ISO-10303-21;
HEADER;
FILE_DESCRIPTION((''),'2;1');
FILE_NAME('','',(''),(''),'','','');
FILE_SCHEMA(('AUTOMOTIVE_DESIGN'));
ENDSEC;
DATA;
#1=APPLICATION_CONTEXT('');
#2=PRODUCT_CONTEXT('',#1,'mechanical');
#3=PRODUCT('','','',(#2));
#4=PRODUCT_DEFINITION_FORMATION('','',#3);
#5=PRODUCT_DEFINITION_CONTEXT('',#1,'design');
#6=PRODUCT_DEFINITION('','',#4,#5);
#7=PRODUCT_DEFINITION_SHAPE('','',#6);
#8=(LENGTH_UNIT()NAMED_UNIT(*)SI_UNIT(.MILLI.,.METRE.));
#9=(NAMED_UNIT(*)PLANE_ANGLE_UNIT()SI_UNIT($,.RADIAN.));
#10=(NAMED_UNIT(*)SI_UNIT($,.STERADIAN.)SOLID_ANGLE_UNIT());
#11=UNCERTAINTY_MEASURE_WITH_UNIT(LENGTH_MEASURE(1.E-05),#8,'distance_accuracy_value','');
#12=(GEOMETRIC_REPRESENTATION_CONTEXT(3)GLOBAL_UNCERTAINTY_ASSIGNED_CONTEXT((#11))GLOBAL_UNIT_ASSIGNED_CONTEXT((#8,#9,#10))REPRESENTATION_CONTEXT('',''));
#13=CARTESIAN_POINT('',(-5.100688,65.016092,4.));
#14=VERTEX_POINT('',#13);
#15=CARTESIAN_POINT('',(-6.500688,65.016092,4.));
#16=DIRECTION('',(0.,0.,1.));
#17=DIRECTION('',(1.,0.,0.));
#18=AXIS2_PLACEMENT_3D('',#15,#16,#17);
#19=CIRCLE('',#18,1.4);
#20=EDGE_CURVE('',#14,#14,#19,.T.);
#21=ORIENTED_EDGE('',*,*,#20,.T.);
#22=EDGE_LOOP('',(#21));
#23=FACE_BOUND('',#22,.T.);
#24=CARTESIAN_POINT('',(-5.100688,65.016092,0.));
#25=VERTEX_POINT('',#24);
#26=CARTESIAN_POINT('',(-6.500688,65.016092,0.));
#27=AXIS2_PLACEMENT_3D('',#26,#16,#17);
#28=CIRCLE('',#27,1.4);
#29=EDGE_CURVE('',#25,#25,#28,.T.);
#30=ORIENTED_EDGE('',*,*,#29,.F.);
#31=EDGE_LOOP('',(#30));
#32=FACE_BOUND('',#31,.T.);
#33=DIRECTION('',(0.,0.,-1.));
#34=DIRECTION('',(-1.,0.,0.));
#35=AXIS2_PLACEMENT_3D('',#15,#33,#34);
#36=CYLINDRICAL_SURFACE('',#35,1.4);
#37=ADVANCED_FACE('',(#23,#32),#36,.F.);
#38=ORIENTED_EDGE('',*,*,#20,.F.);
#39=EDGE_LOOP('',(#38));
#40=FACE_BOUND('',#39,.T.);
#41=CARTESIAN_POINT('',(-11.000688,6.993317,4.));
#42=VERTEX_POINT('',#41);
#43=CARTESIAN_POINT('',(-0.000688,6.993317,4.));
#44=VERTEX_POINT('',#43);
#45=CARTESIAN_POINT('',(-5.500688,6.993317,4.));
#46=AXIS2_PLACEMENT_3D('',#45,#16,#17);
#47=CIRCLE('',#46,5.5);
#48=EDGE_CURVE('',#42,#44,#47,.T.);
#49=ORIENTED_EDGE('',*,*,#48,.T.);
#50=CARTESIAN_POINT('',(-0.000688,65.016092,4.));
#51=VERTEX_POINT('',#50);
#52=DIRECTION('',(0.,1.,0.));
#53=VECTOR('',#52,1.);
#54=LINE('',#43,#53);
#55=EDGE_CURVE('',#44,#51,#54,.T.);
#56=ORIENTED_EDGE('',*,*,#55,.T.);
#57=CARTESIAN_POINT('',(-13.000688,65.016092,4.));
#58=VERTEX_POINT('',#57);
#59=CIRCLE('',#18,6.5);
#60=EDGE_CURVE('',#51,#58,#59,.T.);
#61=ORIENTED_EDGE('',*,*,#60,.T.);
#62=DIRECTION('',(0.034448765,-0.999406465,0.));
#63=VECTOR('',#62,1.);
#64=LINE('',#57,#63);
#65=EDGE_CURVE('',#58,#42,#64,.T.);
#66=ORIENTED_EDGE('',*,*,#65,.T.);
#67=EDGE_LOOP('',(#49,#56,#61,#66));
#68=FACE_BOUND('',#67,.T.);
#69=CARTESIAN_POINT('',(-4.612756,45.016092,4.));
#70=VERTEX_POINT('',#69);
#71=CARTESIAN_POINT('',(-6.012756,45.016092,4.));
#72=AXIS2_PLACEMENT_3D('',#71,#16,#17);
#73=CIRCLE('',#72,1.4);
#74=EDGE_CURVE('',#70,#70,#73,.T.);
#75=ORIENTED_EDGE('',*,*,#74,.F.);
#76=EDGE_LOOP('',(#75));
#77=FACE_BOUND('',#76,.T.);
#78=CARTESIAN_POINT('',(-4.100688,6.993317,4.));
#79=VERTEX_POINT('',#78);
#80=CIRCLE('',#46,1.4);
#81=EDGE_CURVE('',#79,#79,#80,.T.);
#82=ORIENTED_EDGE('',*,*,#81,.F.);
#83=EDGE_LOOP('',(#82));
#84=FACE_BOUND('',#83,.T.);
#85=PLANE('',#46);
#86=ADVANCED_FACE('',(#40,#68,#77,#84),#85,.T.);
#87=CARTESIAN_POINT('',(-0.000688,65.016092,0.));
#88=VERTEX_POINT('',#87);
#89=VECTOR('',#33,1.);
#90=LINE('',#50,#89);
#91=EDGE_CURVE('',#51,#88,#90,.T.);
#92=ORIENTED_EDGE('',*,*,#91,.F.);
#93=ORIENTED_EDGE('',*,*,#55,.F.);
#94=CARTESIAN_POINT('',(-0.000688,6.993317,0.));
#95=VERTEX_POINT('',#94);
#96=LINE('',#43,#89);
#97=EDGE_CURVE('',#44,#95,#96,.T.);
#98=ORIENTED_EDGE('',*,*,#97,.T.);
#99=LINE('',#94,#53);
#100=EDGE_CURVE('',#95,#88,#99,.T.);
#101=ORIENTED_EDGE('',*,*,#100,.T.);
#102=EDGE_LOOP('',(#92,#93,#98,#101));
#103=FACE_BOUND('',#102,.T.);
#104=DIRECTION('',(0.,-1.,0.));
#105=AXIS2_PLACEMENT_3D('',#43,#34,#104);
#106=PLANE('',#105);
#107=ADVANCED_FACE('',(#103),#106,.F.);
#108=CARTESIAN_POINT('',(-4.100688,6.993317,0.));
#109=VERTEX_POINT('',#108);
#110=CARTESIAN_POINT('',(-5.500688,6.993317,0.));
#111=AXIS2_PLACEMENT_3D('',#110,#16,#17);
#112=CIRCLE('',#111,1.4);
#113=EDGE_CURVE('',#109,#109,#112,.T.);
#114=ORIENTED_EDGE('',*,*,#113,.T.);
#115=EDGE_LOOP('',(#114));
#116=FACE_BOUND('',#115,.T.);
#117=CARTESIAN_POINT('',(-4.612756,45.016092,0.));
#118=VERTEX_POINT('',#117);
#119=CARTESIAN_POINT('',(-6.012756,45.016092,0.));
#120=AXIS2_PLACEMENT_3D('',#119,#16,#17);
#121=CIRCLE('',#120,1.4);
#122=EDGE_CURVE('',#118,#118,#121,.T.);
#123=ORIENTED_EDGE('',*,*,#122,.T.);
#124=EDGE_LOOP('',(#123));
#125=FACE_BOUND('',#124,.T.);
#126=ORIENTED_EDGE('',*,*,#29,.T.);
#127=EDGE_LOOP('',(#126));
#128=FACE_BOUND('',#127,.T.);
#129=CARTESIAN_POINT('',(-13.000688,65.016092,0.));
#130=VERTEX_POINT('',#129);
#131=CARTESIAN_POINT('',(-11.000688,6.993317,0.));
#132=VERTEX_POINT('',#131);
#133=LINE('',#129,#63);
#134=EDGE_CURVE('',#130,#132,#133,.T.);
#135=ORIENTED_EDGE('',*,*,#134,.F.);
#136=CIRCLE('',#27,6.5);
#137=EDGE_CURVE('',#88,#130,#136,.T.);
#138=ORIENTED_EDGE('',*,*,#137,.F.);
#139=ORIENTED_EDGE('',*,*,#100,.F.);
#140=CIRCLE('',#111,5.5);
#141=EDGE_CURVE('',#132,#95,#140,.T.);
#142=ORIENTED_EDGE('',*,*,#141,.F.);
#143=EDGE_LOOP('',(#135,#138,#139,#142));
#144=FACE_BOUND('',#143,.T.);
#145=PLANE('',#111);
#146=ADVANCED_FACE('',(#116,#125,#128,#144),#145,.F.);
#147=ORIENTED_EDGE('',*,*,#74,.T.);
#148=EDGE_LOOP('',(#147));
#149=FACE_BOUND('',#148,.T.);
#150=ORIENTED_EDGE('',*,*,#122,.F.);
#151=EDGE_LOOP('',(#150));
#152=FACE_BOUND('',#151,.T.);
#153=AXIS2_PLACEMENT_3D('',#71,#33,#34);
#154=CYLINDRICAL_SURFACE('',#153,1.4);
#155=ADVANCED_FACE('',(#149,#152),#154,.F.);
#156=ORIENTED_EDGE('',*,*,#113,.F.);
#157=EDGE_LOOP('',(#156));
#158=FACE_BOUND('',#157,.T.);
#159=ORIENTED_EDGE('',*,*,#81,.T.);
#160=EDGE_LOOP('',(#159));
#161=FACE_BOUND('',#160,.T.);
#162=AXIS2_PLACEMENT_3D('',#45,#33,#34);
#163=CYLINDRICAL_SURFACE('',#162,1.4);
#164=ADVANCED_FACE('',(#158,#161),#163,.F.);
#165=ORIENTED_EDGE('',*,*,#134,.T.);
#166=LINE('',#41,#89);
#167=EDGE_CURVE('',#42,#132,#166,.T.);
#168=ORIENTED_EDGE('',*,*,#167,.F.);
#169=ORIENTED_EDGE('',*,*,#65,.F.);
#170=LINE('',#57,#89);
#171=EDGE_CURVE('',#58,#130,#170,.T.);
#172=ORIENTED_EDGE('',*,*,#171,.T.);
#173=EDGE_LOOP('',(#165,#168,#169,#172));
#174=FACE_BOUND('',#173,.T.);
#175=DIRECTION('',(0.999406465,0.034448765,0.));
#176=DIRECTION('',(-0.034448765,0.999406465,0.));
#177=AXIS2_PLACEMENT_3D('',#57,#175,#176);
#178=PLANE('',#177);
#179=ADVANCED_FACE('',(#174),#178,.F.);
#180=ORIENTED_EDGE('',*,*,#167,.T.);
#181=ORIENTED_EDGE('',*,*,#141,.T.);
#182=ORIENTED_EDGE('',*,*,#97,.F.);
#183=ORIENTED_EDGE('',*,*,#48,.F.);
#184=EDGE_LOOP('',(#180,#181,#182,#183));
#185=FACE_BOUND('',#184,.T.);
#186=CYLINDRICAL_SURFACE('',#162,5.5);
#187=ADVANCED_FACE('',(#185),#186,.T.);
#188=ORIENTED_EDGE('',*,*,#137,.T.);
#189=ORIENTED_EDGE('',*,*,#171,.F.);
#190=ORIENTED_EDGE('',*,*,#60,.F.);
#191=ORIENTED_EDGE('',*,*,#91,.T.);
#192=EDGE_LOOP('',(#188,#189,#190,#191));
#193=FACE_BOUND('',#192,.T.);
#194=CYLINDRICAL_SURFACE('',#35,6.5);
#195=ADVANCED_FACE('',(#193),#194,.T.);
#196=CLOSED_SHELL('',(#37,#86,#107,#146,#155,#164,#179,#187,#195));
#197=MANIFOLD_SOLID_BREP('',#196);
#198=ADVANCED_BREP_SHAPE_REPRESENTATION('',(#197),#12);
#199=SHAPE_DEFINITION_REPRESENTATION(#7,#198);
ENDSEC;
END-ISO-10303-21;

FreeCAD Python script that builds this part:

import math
import FreeCAD as App
import Part
import Sketcher

V = App.Vector

doc = App.newDocument("Part")
body = doc.addObject("PartDesign::Body", "Body")

# Sketch on XY plane
sketch1 = doc.addObject("Sketcher::SketchObject", "Sketch")
body.addObject(sketch1)
sketch1.AttachmentSupport = (doc.XY_Plane, [""])
sketch1.MapMode = "FlatFace"
sketch1.addGeometry([
    Part.LineSegment(V(0, 7, 0), V(0, 65, 0)),  # 0
    Part.ArcOfCircle(Part.Circle(V(-6.5, 65, 0), V(0, 0, 1), 6.5), math.radians(0), math.radians(180)),  # 1
    Part.LineSegment(V(-13, 65, 0), V(-11, 7, 0)),  # 2
    Part.ArcOfCircle(Part.Circle(V(-5.5, 7, 0), V(0, 0, 1), 5.5), math.radians(180), math.radians(360)),  # 3
    Part.Circle(V(-5.5, 7, 0), V(0, 0, 1), 1.4),  # 4
    Part.Circle(V(-6, 45, 0), V(0, 0, 1), 1.4),  # 5
    Part.Circle(V(-6.5, 65, 0), V(0, 0, 1), 1.4),  # 6
], False)
sketch1.addConstraint([
    Sketcher.Constraint("Tangent", 0, 2, 1, 1),
    Sketcher.Constraint("Coincident", 1, 2, 2, 1),
    Sketcher.Constraint("Coincident", 2, 2, 3, 1),
    Sketcher.Constraint("Tangent", 3, 2, 0, 1),
    Sketcher.Constraint("Vertical", 0),
    Sketcher.Constraint("Coincident", 4, 3, 3, 3),
    Sketcher.Constraint("Coincident", 6, 3, 1, 3),
    Sketcher.Constraint("Equal", 4, 5),
    Sketcher.Constraint("Equal", 5, 6),
    Sketcher.Constraint("Horizontal", 0, 2, 1, 2),
    Sketcher.Constraint("Horizontal", 4, 3, 2, 2),
    Sketcher.Constraint("Diameter", 4, 2.8),
    Sketcher.Constraint("Radius", 1, 6.5),
    Sketcher.Constraint("Radius", 3, 5.5),
    Sketcher.Constraint("DistanceY", 5, 3, 1, 3, 20.0),
    Sketcher.Constraint("DistanceY", 0, 1, 0, 2, 58.022774),
    Sketcher.Constraint("DistanceX", 1, 3, -1, 1, 6.500688),
    Sketcher.Constraint("DistanceY", -1, 1, 1, 3, 65.016092),
    Sketcher.Constraint("DistanceX", 5, 3, -1, 1, 6.012756),
])
pad1 = doc.addObject("PartDesign::Pad", "Pad")
body.addObject(pad1)
pad1.Profile = sketch1
pad1.Length = 4

doc.recompute()
